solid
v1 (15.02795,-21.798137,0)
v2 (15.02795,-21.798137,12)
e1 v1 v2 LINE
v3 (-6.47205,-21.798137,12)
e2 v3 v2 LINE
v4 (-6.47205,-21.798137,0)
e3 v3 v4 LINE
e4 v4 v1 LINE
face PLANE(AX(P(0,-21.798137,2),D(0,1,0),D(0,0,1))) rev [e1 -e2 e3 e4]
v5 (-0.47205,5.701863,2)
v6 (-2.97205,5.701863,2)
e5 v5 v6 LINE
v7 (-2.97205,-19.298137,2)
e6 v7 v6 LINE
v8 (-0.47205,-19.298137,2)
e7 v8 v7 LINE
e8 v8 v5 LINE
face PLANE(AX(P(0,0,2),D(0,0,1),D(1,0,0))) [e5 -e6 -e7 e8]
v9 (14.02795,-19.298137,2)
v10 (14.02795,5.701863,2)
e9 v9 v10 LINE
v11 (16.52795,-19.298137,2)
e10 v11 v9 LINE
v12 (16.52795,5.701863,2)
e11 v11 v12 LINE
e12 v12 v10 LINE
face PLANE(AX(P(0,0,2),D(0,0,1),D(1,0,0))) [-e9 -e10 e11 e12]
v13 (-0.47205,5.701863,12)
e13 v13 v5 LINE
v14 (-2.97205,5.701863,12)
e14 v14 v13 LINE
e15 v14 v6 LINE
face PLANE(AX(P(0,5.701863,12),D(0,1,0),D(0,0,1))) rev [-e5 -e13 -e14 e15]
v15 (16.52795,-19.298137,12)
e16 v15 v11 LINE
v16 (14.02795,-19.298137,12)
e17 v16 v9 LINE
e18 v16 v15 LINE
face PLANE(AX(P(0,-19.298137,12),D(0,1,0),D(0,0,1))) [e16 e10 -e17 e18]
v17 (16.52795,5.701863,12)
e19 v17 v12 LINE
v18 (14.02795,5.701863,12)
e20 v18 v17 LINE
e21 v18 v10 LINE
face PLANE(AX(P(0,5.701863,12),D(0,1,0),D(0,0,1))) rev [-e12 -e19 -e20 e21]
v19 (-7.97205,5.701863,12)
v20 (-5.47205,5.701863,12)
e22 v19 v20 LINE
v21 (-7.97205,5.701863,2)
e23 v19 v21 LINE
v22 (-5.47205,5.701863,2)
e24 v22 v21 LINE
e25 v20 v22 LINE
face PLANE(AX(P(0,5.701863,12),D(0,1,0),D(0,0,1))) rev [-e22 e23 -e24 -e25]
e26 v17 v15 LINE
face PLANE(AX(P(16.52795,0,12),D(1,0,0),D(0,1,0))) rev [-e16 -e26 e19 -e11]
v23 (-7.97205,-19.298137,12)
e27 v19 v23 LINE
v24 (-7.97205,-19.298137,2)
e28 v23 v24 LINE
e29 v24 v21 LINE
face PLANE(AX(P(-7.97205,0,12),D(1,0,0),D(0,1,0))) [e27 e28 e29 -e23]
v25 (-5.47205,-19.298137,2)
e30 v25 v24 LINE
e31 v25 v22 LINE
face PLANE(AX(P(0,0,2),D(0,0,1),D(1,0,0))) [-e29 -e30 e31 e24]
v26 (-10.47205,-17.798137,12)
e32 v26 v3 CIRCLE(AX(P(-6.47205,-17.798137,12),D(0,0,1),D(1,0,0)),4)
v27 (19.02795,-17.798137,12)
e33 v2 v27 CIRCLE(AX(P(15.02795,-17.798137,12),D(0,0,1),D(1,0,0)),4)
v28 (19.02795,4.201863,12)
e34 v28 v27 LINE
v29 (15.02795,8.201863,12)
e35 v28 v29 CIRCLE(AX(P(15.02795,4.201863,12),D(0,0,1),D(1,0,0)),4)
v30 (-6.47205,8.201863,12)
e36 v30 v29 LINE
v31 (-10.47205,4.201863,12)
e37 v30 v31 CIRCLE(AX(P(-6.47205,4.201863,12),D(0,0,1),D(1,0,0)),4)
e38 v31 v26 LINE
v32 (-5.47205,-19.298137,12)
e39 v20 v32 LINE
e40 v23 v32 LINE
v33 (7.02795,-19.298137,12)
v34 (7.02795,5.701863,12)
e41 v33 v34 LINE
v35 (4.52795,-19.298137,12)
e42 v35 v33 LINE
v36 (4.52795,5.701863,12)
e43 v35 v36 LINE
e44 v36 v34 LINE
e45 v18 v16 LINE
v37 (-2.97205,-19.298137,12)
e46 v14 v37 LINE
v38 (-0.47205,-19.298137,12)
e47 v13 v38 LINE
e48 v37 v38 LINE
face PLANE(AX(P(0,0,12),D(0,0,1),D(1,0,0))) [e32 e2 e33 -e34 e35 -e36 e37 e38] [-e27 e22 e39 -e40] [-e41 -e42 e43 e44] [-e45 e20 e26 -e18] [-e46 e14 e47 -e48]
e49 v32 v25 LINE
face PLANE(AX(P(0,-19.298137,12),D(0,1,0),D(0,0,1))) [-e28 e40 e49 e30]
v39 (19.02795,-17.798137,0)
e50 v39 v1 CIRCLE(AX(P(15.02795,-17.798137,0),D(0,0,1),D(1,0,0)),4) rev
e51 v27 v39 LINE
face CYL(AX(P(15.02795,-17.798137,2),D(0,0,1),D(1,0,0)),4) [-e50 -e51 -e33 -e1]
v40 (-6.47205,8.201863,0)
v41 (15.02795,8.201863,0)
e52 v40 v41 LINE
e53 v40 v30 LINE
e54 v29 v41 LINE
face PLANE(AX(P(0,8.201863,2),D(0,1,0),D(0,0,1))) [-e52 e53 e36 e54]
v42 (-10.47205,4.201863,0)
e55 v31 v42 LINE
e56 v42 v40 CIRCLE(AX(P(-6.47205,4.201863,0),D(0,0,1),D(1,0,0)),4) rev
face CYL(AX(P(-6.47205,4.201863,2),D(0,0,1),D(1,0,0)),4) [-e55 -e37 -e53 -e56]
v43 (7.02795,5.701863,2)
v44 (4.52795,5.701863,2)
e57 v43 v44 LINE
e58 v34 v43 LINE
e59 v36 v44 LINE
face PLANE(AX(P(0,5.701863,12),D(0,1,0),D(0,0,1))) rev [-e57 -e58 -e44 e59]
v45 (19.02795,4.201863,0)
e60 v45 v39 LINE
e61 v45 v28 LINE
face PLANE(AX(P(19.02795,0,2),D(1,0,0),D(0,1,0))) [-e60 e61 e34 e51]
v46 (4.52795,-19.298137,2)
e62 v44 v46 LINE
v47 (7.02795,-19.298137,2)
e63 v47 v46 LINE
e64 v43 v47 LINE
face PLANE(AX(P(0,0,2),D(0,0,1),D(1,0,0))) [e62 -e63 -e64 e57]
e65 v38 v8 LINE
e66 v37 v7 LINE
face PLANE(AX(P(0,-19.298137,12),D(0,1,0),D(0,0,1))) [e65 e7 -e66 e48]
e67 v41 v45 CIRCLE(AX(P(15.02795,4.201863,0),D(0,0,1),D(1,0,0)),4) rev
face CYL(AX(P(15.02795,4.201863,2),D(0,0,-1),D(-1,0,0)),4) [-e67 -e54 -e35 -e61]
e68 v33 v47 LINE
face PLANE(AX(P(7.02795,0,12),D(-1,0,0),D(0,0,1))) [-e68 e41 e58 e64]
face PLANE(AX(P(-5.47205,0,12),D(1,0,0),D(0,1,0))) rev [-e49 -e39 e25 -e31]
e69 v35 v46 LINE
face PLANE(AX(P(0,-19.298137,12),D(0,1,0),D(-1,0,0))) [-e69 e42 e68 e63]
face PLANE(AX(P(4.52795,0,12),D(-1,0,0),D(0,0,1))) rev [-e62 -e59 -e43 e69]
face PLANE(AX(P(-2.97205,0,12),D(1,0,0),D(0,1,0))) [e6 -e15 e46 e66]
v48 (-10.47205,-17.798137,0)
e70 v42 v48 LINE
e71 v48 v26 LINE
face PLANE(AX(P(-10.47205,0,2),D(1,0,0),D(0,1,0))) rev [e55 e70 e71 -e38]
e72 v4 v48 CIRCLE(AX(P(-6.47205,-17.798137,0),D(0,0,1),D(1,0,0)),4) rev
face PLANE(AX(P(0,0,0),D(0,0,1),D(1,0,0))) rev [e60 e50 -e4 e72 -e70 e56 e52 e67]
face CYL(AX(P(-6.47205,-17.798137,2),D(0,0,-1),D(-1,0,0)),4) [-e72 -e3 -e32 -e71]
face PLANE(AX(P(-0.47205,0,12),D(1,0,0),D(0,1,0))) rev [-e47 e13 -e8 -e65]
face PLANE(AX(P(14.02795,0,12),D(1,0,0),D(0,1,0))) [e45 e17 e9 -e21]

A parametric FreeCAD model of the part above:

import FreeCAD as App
import Part
import Sketcher

V = App.Vector
Q = App.Units.Quantity


def edges_at(feature, points):
    """Names of the edges that pass closest to the given points."""
    edges = feature.Shape.Edges
    near = lambda p: min(range(len(edges)), key=lambda i: edges[i].distToShape(Part.Vertex(*p))[0])
    return sorted({f"Edge{near(p) + 1}" for p in points})


def add_polygon(sketch, points):
    """Adds a closed chain of lines whose ends are joined by coincident constraints."""
    first, n = sketch.GeometryCount, len(points)
    for a, b in zip(points, points[1:] + points[:1]):
        sketch.addGeometry(Part.LineSegment(App.Vector(*a, 0), App.Vector(*b, 0)), False)
    for i in range(n):
        sketch.addConstraint(Sketcher.Constraint("Coincident", first + i, 2, first + (i + 1) % n, 1))

doc = App.newDocument("Part")
body = doc.addObject("PartDesign::Body", "Body")

# Sketch on XY plane
sketch1 = doc.addObject("Sketcher::SketchObject", "Sketch")
body.addObject(sketch1)
sketch1.AttachmentSupport = (doc.XY_Plane, [""])
sketch1.MapMode = "FlatFace"
add_polygon(sketch1, [(19.02795, 8.201863), (-10.47205, 8.201863), (-10.47205, -21.798137), (19.02795, -21.798137)])  # lines 0-3
sketch1.addConstraint(Sketcher.Constraint("Horizontal", 0))
sketch1.addConstraint(Sketcher.Constraint("Vertical", 1))
sketch1.addConstraint(Sketcher.Constraint("Horizontal", 2))
sketch1.addConstraint(Sketcher.Constraint("Vertical", 3))
sketch1.addConstraint(Sketcher.Constraint("DistanceY", 1, 2, 1, 1, Q("30 mm")))
sketch1.addConstraint(Sketcher.Constraint("DistanceX", 0, 2, 0, 1, Q("29.5 mm")))
sketch1.addConstraint(Sketcher.Constraint("DistanceX", 0, 2, -1, 1, Q("10.47205 mm")))
sketch1.addConstraint(Sketcher.Constraint("DistanceY", -1, 1, 0, 2, Q("8.201863 mm")))
pad1 = doc.addObject("PartDesign::Pad", "Pad")
body.addObject(pad1)
pad1.Profile = sketch1
pad1.Length = 2

# Sketch on XY plane
sketch2 = doc.addObject("Sketcher::SketchObject", "Sketch001")
body.addObject(sketch2)
sketch2.AttachmentSupport = (doc.XY_Plane, [""])
sketch2.MapMode = "FlatFace"
add_polygon(sketch2, [(19.02795, 8.201863), (-10.47205, 8.201863), (-10.47205, -21.798137), (19.02795, -21.798137)])  # lines 0-3
add_polygon(sketch2, [(-7.97205, -19.298137), (-7.97205, 5.701863), (-5.47205, 5.701863), (-5.47205, -19.298137)])  # lines 4-7
add_polygon(sketch2, [(-0.47205, 5.701863), (-0.47205, -19.298137), (-2.97205, -19.298137), (-2.97205, 5.701863)])  # lines 8-11
add_polygon(sketch2, [(7.02795, 5.701863), (7.02795, -19.298137), (4.52795, -19.298137), (4.52795, 5.701863)])  # lines 12-15
add_polygon(sketch2, [(16.52795, 5.701863), (16.52795, -19.298137), (14.02795, -19.298137), (14.02795, 5.701863)])  # lines 16-19
sketch2.addConstraint(Sketcher.Constraint("Horizontal", 0))
sketch2.addConstraint(Sketcher.Constraint("Vertical", 1))
sketch2.addConstraint(Sketcher.Constraint("Horizontal", 2))
sketch2.addConstraint(Sketcher.Constraint("Vertical", 3))
sketch2.addConstraint(Sketcher.Constraint("Vertical", 4))
sketch2.addConstraint(Sketcher.Constraint("Horizontal", 5))
sketch2.addConstraint(Sketcher.Constraint("Vertical", 6))
sketch2.addConstraint(Sketcher.Constraint("Horizontal", 7))
sketch2.addConstraint(Sketcher.Constraint("Vertical", 8))
sketch2.addConstraint(Sketcher.Constraint("Horizontal", 9))
sketch2.addConstraint(Sketcher.Constraint("Vertical", 10))
sketch2.addConstraint(Sketcher.Constraint("Horizontal", 11))
sketch2.addConstraint(Sketcher.Constraint("Vertical", 12))
sketch2.addConstraint(Sketcher.Constraint("Horizontal", 13))
sketch2.addConstraint(Sketcher.Constraint("Vertical", 14))
sketch2.addConstraint(Sketcher.Constraint("Horizontal", 15))
sketch2.addConstraint(Sketcher.Constraint("Vertical", 16))
sketch2.addConstraint(Sketcher.Constraint("Horizontal", 17))
sketch2.addConstraint(Sketcher.Constraint("Vertical", 18))
sketch2.addConstraint(Sketcher.Constraint("Horizontal", 19))
sketch2.addConstraint(Sketcher.Constraint("Horizontal", 7, 2, 8, 2))
sketch2.addConstraint(Sketcher.Constraint("Horizontal", 5, 2, 10, 2))
sketch2.addConstraint(Sketcher.Constraint("Horizontal", 9, 2, 12, 2))
sketch2.addConstraint(Sketcher.Constraint("Horizontal", 11, 2, 14, 2))
sketch2.addConstraint(Sketcher.Constraint("Horizontal", 13, 2, 16, 2))
sketch2.addConstraint(Sketcher.Constraint("Horizontal", 15, 2, 18, 2))
sketch2.addConstraint(Sketcher.Constraint("Equal", 7, 9))
sketch2.addConstraint(Sketcher.Constraint("Equal", 11, 13))
sketch2.addConstraint(Sketcher.Constraint("Equal", 15, 17))
sketch2.addConstraint(Sketcher.Constraint("DistanceY", 1, 2, 1, 1, Q("30 mm")))
sketch2.addConstraint(Sketcher.Constraint("DistanceY", 4, 1, 4, 2, Q("25 mm")))
sketch2.addConstraint(Sketcher.Constraint("DistanceX", 0, 2, 0, 1, Q("29.5 mm")))
sketch2.addConstraint(Sketcher.Constraint("DistanceX", 5, 1, 5, 2, Q("2.5 mm")))
sketch2.addConstraint(Sketcher.Constraint("DistanceX", 4, 2, 3, 2, Q("27 mm")))
sketch2.addConstraint(Sketcher.Constraint("DistanceX", 6, 2, 8, 2, Q("5 mm")))
sketch2.addConstraint(Sketcher.Constraint("DistanceX", 9, 2, 12, 2, Q("10 mm")))
sketch2.addConstraint(Sketcher.Constraint("DistanceX", 13, 2, 16, 2, Q("12 mm")))
sketch2.addConstraint(Sketcher.Constraint("DistanceY", 4, 2, 0, 2, Q("2.5 mm")))
sketch2.addConstraint(Sketcher.Constraint("DistanceX", 0, 2, -1, 1, Q("10.47205 mm")))
sketch2.addConstraint(Sketcher.Constraint("DistanceY", -1, 1, 0, 2, Q("8.201863 mm")))
pad2 = doc.addObject("PartDesign::Pad", "Pad001")
body.addObject(pad2)
pad2.Profile = sketch2
pad2.Length = 12
doc.recompute()

fillet = doc.addObject("PartDesign::Fillet", "Fillet")
body.addObject(fillet)
fillet.Base = (pad2, edges_at(pad2, [
    (-10.472, 8.202, 6),
    (19.028, 8.202, 6),
    (19.028, -21.798, 6),
    (-10.472, -21.798, 6),
]))
fillet.Radius = 4

doc.recompute()
